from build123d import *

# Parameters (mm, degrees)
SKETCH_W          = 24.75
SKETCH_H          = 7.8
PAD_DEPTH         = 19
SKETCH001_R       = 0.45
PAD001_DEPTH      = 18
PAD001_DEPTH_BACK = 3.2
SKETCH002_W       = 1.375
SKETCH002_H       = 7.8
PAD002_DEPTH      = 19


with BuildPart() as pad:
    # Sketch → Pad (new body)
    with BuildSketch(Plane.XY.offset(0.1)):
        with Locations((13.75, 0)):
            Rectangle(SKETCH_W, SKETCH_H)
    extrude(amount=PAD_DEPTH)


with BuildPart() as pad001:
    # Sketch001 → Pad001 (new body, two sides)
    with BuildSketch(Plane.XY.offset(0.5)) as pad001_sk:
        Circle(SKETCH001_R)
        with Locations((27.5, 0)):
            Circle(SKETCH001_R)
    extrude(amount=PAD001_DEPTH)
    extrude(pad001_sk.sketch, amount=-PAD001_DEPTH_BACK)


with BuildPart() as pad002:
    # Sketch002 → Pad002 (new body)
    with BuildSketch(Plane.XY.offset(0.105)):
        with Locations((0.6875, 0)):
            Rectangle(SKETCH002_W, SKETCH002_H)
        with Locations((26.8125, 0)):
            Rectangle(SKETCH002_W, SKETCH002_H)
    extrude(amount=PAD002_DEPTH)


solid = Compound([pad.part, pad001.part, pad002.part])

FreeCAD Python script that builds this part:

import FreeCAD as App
import Part
import Sketcher
from FreeCAD import Vector

doc = App.newDocument("Part")
body = doc.addObject("PartDesign::Body", "Body")

# Sketch on XY plane
sketch1 = body.newObject("Sketcher::SketchObject", "Sketch")
sketch1.AttachmentSupport = (doc.getObject("XY_Plane"), [""])
sketch1.MapMode = "FlatFace"
sketch1.AttachmentOffset = App.Placement(Vector(0, 0, 0.1), App.Rotation())
sketch1.addGeometry(Part.LineSegment(Vector(1, 4, 0), Vector(1, -4, 0)), False)
sketch1.addGeometry(Part.LineSegment(Vector(1, -4, 0), Vector(26, -4, 0)), False)
sketch1.addGeometry(Part.LineSegment(Vector(26, -4, 0), Vector(26, 4, 0)), False)
sketch1.addGeometry(Part.LineSegment(Vector(26, 4, 0), Vector(1, 4, 0)), False)
sketch1.addConstraint(Sketcher.Constraint("Coincident", 0, 2, 1, 1))
sketch1.addConstraint(Sketcher.Constraint("Coincident", 1, 2, 2, 1))
sketch1.addConstraint(Sketcher.Constraint("Coincident", 2, 2, 3, 1))
sketch1.addConstraint(Sketcher.Constraint("Coincident", 3, 2, 0, 1))
sketch1.addConstraint(Sketcher.Constraint("Vertical", 0))
sketch1.addConstraint(Sketcher.Constraint("Horizontal", 1))
sketch1.addConstraint(Sketcher.Constraint("Vertical", 2))
sketch1.addConstraint(Sketcher.Constraint("Horizontal", 3))
sketch1.addConstraint(Sketcher.Constraint("DistanceY", 0, 2, 0, 1, 7.8))
sketch1.addConstraint(Sketcher.Constraint("DistanceX", 1, 1, 1, 2, 24.75))
sketch1.addConstraint(Sketcher.Constraint("DistanceY", 0, 2, -1, 1, 3.9))
sketch1.addConstraint(Sketcher.Constraint("DistanceX", -1, 1, 0, 2, 1.375))
pad1 = body.newObject("PartDesign::Pad", "Pad")
pad1.Profile = sketch1
pad1.Length = 19
body2 = doc.addObject("PartDesign::Body", "Body001")
body2.AllowCompound = True

# Sketch on XY plane
sketch2 = body2.newObject("Sketcher::SketchObject", "Sketch001")
sketch2.AttachmentSupport = (doc.getObject("XY_Plane001"), [""])
sketch2.MapMode = "FlatFace"
sketch2.AttachmentOffset = App.Placement(Vector(0, 0, 0.5), App.Rotation())
sketch2.addGeometry(Part.Circle(Vector(0, 0, 0), Vector(0, 0, 1), 0.45), False)
sketch2.addGeometry(Part.Circle(Vector(27.5, 0, 0), Vector(0, 0, 1), 0.45), False)
sketch2.addConstraint(Sketcher.Constraint("Coincident", 0, 3, -1, 1))
sketch2.addConstraint(Sketcher.Constraint("Equal", 0, 1))
sketch2.addConstraint(Sketcher.Constraint("PointOnObject", 1, 3, -1))
sketch2.addConstraint(Sketcher.Constraint("Diameter", 0, 0.9))
sketch2.addConstraint(Sketcher.Constraint("DistanceX", -1, 1, 1, 3, 27.5))
pad2 = body2.newObject("PartDesign::Pad", "Pad001")
pad2.Profile = sketch2
pad2.Type = "TwoLengths"
pad2.Length = 18
pad2.Length2 = 3.2
body3 = doc.addObject("PartDesign::Body", "Body002")
body3.AllowCompound = True

# Sketch on XY plane
sketch3 = body3.newObject("Sketcher::SketchObject", "Sketch002")
sketch3.AttachmentSupport = (doc.getObject("XY_Plane002"), [""])
sketch3.MapMode = "FlatFace"
sketch3.AttachmentOffset = App.Placement(Vector(0, 0, 0.105), App.Rotation())
sketch3.addGeometry(Part.LineSegment(Vector(0, 3.9, 0), Vector(0, -3.9, 0)), False)
sketch3.addGeometry(Part.LineSegment(Vector(0, -3.9, 0), Vector(1.4, -3.9, 0)), False)
sketch3.addGeometry(Part.LineSegment(Vector(1.4, -3.9, 0), Vector(1.4, 3.9, 0)), False)
sketch3.addGeometry(Part.LineSegment(Vector(1.4, 3.9, 0), Vector(0, 3.9, 0)), False)
sketch3.addGeometry(Part.LineSegment(Vector(26.1, 3.9, 0), Vector(26.1, -3.9, 0)), False)
sketch3.addGeometry(Part.LineSegment(Vector(26.1, -3.9, 0), Vector(27.5, -3.9, 0)), False)
sketch3.addGeometry(Part.LineSegment(Vector(27.5, -3.9, 0), Vector(27.5, 3.9, 0)), False)
sketch3.addGeometry(Part.LineSegment(Vector(27.5, 3.9, 0), Vector(26.1, 3.9, 0)), False)
sketch3.addConstraint(Sketcher.Constraint("Coincident", 0, 2, 1, 1))
sketch3.addConstraint(Sketcher.Constraint("Coincident", 1, 2, 2, 1))
sketch3.addConstraint(Sketcher.Constraint("Coincident", 2, 2, 3, 1))
sketch3.addConstraint(Sketcher.Constraint("Coincident", 3, 2, 0, 1))
sketch3.addConstraint(Sketcher.Constraint("Coincident", 4, 2, 5, 1))
sketch3.addConstraint(Sketcher.Constraint("Coincident", 5, 2, 6, 1))
sketch3.addConstraint(Sketcher.Constraint("Coincident", 6, 2, 7, 1))
sketch3.addConstraint(Sketcher.Constraint("Coincident", 7, 2, 4, 1))
sketch3.addConstraint(Sketcher.Constraint("Vertical", 0))
sketch3.addConstraint(Sketcher.Constraint("Horizontal", 1))
sketch3.addConstraint(Sketcher.Constraint("Vertical", 2))
sketch3.addConstraint(Sketcher.Constraint("Horizontal", 3))
sketch3.addConstraint(Sketcher.Constraint("Vertical", 4))
sketch3.addConstraint(Sketcher.Constraint("Horizontal", 5))
sketch3.addConstraint(Sketcher.Constraint("Vertical", 6))
sketch3.addConstraint(Sketcher.Constraint("Horizontal", 7))
sketch3.addConstraint(Sketcher.Constraint("Symmetric", 0, 2, 3, 2, -1, 1))
sketch3.addConstraint(Sketcher.Constraint("Horizontal", 1, 2, 4, 2))
sketch3.addConstraint(Sketcher.Constraint("Horizontal", 3, 2, 6, 2))
sketch3.addConstraint(Sketcher.Constraint("Equal", 3, 5))
sketch3.addConstraint(Sketcher.Constraint("DistanceY", 0, 2, 0, 1, 7.8))
sketch3.addConstraint(Sketcher.Constraint("DistanceX", -1, 1, 5, 2, 27.5))
sketch3.addConstraint(Sketcher.Constraint("DistanceX", 1, 1, 1, 2, 1.375))
pad3 = body3.newObject("PartDesign::Pad", "Pad002")
pad3.Profile = sketch3
pad3.Length = 19

doc.recompute()
